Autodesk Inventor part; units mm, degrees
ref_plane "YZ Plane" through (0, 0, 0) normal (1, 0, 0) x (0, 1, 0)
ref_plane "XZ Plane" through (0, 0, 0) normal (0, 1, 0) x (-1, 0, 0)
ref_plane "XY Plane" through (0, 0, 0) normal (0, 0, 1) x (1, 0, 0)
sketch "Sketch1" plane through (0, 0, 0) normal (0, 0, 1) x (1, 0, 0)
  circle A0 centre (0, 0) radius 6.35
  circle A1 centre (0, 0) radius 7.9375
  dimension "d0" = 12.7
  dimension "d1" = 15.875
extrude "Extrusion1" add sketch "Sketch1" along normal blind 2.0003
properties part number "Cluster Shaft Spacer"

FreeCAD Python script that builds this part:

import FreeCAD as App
import Part
import Sketcher

V = App.Vector
Q = App.Units.Quantity

doc = App.newDocument("Part")
body = doc.addObject("PartDesign::Body", "Body")

# Sketch on XY plane
sketch1 = body.newObject("Sketcher::SketchObject", "Sketch")
sketch1.AttachmentSupport = (doc.getObject("XY_Plane"), [""])
sketch1.MapMode = "FlatFace"
sketch1.addGeometry(Part.Circle(V(0, 0, 0), V(0, 0, 1), 8), False)
sketch1.addGeometry(Part.Circle(V(0, 0, 0), V(0, 0, 1), 6), False)
sketch1.addConstraint(Sketcher.Constraint("Coincident", 0, 3, -1, 1))
sketch1.addConstraint(Sketcher.Constraint("Coincident", 1, 3, -1, 1))
sketch1.addConstraint(Sketcher.Constraint("Diameter", 1, Q("0.5 in")))
sketch1.addConstraint(Sketcher.Constraint("Diameter", 0, Q("0.625 in")))
pad1 = body.newObject("PartDesign::Pad", "Pad")
pad1.Profile = sketch1
pad1.Length = 2.0003

doc.recompute()
